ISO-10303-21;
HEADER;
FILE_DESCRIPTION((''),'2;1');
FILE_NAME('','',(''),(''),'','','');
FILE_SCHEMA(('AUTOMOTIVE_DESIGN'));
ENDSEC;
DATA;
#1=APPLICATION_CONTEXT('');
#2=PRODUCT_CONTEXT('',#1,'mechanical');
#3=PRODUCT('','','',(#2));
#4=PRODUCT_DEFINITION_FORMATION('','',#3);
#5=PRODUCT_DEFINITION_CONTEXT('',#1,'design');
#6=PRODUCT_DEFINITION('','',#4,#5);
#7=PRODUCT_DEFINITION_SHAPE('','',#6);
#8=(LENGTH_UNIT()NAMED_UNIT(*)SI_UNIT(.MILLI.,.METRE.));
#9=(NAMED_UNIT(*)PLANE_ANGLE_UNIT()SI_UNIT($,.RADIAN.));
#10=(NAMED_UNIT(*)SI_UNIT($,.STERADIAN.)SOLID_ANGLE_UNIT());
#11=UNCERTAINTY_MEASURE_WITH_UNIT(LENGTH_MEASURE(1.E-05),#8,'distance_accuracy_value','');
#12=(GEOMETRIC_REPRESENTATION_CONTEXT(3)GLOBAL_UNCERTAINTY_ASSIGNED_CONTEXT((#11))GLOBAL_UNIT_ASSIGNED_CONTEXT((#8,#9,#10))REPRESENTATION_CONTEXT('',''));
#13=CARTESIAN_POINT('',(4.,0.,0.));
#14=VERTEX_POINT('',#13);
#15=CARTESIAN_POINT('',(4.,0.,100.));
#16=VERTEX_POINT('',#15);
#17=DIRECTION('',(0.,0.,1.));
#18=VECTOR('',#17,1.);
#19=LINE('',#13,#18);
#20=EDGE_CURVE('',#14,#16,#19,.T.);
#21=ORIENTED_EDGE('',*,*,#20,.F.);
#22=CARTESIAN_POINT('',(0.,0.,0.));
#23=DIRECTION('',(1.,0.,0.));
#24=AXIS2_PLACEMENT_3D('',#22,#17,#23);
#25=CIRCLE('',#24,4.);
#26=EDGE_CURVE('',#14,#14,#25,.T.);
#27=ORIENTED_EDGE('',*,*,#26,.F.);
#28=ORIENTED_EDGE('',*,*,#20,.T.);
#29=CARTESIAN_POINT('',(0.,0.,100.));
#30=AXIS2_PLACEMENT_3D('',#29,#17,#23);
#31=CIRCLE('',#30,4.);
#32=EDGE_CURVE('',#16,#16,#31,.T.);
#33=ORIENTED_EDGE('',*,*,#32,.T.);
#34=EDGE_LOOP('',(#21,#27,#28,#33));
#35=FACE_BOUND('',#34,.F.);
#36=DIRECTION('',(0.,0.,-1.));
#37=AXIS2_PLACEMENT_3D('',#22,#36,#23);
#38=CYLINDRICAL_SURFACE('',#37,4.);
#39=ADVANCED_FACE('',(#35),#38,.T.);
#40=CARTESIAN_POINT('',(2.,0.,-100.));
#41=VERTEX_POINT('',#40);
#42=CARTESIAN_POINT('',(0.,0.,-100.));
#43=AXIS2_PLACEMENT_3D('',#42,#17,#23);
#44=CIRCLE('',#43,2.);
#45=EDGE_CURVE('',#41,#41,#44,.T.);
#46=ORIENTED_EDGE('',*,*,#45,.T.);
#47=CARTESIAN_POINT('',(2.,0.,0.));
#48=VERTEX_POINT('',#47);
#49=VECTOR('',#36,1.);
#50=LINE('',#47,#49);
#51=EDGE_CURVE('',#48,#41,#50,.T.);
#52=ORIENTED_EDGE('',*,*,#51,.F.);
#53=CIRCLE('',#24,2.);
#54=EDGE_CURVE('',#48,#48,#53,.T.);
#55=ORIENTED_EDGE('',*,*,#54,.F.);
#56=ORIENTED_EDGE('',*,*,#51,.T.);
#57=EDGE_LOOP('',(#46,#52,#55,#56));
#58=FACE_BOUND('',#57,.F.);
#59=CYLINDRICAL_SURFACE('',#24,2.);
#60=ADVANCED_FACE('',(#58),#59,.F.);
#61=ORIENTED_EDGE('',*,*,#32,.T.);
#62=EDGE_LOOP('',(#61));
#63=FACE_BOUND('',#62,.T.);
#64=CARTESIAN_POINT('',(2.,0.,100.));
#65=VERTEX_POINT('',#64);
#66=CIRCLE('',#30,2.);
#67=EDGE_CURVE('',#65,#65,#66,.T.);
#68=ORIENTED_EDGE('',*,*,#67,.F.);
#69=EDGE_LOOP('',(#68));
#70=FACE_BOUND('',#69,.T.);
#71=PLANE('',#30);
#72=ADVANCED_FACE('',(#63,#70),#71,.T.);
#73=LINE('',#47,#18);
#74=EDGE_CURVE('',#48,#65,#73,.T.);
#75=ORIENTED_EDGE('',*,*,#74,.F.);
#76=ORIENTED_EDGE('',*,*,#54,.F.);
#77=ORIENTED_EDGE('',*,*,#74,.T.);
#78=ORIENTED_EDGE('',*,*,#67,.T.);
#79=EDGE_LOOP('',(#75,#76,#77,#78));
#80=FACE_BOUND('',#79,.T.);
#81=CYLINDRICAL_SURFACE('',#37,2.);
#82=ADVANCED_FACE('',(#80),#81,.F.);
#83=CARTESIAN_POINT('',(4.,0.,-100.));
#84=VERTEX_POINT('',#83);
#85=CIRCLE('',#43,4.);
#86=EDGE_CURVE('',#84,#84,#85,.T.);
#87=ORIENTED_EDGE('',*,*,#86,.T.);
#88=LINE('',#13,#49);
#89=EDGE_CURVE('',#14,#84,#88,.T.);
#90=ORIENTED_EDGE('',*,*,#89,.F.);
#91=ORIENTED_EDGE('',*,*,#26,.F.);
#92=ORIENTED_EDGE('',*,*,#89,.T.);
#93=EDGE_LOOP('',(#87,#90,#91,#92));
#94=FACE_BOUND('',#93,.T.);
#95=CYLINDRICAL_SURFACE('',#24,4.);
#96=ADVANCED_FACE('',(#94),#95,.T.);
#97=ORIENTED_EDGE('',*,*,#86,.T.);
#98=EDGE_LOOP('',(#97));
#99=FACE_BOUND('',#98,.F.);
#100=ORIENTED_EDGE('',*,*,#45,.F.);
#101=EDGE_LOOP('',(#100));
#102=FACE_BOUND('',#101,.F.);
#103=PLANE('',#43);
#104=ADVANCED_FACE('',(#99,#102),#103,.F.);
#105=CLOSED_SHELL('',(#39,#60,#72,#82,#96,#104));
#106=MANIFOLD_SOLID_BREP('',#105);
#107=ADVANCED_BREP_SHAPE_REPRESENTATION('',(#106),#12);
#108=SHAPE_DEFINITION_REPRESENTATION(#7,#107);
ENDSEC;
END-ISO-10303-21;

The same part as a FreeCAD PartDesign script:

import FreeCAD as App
import Part
import Sketcher

V = App.Vector
Q = App.Units.Quantity

doc = App.newDocument("Part")
body = doc.addObject("PartDesign::Body", "Body")

# Sketch on XY plane
sketch1 = body.newObject("Sketcher::SketchObject", "Sketch")
sketch1.AttachmentSupport = (doc.getObject("XY_Plane"), [""])
sketch1.MapMode = "FlatFace"
sketch1.addGeometry([
    Part.Circle(V(0, 0, 0), V(0, 0, 1), 4),
    Part.Circle(V(0, 0, 0), V(0, 0, 1), 2),
], False)
sketch1.addConstraint([
    Sketcher.Constraint("Coincident", 0, 3, -1, 1),
    Sketcher.Constraint("Coincident", 1, 3, -1, 1),
    Sketcher.Constraint("Diameter", 0, Q("8 mm")),
    Sketcher.Constraint("Diameter", 1, Q("4 mm")),
])
pad1 = body.newObject("PartDesign::Pad", "Pad")
pad1.Profile = sketch1
pad1.Length = 200
pad1.Midplane = True

doc.recompute()
